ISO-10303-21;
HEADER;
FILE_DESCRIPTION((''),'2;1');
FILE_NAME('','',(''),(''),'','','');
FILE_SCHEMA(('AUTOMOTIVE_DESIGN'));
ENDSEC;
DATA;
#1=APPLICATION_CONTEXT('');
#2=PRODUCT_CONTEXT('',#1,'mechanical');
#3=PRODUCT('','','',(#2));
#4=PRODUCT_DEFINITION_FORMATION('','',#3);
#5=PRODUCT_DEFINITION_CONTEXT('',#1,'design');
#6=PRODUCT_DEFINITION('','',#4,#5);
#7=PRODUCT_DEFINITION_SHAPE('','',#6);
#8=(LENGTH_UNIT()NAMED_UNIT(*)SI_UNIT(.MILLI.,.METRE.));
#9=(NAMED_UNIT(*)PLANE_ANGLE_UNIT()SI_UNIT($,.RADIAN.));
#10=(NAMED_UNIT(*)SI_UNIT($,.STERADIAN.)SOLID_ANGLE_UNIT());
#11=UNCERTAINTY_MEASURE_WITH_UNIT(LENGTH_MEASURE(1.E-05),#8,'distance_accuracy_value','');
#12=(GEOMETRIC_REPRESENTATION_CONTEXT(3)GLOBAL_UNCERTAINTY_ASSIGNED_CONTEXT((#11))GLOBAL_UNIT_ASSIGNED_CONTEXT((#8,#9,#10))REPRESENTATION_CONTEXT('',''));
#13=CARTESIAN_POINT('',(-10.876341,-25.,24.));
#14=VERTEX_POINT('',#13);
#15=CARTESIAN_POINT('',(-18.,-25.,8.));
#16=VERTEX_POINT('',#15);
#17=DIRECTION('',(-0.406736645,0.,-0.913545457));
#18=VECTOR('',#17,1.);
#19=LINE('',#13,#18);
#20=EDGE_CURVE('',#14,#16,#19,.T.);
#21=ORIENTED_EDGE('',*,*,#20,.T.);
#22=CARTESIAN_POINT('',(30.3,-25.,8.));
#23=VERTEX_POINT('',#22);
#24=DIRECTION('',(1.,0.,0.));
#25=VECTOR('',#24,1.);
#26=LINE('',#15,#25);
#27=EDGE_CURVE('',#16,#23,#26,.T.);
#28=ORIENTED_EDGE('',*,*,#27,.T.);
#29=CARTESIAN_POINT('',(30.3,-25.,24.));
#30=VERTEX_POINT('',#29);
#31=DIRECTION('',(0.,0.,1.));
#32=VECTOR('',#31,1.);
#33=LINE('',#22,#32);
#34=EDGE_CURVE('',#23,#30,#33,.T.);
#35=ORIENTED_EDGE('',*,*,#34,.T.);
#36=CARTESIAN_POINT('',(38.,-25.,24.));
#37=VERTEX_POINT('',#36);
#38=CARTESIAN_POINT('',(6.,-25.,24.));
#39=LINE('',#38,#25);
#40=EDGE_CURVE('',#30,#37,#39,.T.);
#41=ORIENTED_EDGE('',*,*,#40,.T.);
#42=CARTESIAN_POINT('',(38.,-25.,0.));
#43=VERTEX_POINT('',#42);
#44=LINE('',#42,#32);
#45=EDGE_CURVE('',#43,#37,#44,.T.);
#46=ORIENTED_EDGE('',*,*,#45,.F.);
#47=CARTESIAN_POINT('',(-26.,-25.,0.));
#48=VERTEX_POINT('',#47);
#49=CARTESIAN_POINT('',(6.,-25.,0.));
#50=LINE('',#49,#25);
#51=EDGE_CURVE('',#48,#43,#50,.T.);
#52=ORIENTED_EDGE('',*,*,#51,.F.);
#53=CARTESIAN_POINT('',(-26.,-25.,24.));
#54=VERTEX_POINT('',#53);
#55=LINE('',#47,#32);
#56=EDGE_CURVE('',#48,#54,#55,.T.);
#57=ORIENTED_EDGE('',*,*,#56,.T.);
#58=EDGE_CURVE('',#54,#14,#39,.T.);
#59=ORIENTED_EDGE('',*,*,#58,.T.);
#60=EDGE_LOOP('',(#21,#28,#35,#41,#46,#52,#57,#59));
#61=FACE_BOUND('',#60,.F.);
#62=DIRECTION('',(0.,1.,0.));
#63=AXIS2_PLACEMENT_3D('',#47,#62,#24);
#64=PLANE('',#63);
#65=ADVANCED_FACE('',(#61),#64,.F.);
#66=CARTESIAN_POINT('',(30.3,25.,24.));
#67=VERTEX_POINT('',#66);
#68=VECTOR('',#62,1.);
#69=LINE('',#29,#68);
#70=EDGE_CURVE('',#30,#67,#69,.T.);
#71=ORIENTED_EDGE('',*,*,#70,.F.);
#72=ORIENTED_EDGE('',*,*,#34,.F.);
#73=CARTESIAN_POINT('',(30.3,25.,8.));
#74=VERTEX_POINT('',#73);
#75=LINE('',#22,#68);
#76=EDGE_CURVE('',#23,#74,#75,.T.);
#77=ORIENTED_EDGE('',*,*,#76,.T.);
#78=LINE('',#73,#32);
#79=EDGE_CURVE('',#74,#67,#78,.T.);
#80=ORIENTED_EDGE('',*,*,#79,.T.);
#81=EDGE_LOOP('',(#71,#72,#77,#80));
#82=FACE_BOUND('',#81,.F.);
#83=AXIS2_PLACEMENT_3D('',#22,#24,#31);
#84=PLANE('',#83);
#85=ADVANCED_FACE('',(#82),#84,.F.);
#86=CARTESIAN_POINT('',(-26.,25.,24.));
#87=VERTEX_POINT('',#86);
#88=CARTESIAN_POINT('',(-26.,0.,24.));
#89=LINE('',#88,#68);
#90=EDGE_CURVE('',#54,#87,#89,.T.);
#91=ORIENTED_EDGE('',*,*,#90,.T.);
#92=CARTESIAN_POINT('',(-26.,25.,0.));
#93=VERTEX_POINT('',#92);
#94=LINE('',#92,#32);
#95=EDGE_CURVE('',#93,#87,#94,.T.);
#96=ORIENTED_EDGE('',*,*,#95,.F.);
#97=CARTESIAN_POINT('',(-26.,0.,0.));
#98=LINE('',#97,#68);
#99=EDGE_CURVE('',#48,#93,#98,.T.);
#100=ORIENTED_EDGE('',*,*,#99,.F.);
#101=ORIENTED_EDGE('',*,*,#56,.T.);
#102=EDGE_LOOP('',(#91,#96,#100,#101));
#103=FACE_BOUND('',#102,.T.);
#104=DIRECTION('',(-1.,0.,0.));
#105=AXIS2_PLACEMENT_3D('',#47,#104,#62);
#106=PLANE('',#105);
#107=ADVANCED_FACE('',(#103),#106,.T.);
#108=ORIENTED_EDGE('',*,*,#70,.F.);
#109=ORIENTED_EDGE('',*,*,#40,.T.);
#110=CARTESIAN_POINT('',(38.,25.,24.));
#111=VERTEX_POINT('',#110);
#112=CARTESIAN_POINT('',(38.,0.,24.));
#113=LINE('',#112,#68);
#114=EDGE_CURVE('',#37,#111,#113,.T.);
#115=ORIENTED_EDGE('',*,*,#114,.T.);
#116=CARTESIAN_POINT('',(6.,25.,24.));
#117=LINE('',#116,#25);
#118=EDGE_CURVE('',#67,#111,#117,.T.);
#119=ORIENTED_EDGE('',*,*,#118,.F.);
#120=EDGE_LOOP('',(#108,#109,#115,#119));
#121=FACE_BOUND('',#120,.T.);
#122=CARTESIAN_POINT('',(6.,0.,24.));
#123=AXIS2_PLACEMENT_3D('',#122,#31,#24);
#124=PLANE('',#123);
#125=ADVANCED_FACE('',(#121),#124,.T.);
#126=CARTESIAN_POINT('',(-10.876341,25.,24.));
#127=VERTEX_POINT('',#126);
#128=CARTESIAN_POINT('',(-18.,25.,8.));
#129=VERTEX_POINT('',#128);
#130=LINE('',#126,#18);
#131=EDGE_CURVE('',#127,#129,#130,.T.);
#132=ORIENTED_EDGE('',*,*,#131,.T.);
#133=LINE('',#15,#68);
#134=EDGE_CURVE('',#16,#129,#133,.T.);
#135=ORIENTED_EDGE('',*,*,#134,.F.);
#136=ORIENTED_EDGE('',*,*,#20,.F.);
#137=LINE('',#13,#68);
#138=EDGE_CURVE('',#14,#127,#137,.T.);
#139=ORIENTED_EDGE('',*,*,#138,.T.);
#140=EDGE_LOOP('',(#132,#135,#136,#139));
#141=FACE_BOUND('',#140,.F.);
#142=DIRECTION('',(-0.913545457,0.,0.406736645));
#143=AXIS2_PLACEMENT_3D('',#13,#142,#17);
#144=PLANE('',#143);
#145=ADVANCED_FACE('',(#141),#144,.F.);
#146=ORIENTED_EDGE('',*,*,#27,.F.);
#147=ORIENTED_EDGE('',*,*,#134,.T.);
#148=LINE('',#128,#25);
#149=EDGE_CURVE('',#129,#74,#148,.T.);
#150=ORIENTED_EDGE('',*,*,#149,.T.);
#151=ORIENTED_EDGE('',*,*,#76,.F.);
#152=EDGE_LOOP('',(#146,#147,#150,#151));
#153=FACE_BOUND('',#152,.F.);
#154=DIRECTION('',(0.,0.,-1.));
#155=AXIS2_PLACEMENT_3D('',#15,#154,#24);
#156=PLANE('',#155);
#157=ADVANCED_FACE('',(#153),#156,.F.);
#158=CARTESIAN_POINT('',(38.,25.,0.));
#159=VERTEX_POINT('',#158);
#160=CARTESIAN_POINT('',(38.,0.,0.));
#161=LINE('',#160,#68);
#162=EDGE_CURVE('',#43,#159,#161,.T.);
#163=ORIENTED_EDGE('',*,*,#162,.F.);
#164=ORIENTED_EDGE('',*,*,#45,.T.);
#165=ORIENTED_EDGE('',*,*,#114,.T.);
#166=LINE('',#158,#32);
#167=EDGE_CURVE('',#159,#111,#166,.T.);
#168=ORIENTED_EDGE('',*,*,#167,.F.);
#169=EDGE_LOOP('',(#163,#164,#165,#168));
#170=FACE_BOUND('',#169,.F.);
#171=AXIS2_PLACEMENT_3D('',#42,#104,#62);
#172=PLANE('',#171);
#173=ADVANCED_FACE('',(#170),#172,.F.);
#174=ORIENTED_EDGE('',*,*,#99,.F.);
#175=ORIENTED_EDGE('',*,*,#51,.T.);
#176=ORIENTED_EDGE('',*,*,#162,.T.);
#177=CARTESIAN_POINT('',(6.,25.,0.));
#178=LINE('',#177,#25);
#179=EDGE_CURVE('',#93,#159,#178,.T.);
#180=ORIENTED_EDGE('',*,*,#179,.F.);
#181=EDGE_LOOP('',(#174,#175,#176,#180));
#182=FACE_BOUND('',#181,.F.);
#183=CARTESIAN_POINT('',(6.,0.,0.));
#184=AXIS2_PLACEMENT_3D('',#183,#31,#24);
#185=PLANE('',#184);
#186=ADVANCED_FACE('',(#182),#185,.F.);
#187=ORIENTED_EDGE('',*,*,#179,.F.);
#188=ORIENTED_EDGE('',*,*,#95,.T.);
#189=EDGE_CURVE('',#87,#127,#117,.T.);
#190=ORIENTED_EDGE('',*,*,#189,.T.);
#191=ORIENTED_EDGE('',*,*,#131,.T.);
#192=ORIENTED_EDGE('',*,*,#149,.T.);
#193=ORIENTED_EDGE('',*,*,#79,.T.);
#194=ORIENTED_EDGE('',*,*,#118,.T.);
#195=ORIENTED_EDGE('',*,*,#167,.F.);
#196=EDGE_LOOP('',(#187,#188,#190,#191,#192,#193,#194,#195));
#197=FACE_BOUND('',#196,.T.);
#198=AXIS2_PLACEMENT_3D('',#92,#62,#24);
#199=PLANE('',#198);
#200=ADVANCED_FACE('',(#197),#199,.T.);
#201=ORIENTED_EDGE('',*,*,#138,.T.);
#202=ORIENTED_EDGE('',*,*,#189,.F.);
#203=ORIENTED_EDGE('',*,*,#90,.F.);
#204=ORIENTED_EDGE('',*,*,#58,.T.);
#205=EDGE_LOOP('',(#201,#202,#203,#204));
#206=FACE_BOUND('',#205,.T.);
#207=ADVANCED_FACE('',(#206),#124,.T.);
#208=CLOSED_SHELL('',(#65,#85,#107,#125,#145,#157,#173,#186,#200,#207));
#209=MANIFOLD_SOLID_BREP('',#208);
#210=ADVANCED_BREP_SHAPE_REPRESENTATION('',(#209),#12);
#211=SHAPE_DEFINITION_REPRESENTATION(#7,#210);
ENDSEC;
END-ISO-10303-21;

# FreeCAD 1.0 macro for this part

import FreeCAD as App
import Part
import Sketcher
from FreeCAD import Vector
Q = App.Units.Quantity

doc = App.newDocument("Part")
body = doc.addObject("PartDesign::Body", "Body")

# Sketch on XY plane
sketch1 = body.newObject("Sketcher::SketchObject", "Sketch")
sketch1.AttachmentSupport = (doc.getObject("XY_Plane"), [""])
sketch1.MapMode = "FlatFace"
sketch1.addGeometry([
    Part.LineSegment(Vector(-26, 25, 0), Vector(-26, -25, 0)),
    Part.LineSegment(Vector(-26, -25, 0), Vector(38, -25, 0)),
    Part.LineSegment(Vector(38, -25, 0), Vector(38, 25, 0)),
    Part.LineSegment(Vector(38, 25, 0), Vector(-26, 25, 0)),
], False)
sketch1.addConstraint([
    Sketcher.Constraint("Coincident", 0, 2, 1, 1),
    Sketcher.Constraint("Coincident", 1, 2, 2, 1),
    Sketcher.Constraint("Coincident", 2, 2, 3, 1),
    Sketcher.Constraint("Coincident", 3, 2, 0, 1),
    Sketcher.Constraint("Vertical", 0),
    Sketcher.Constraint("Horizontal", 1),
    Sketcher.Constraint("Vertical", 2),
    Sketcher.Constraint("Horizontal", 3),
    Sketcher.Constraint("DistanceX", 1, 1, 1, 2, Q("64 mm")),
    Sketcher.Constraint("DistanceY", 0, 2, 0, 1, Q("50 mm")),
    Sketcher.Constraint("DistanceX", 0, 2, -1, 1, Q("26 mm")),
    Sketcher.Constraint("DistanceY", 0, 2, -1, 1, Q("25 mm")),
])
pad1 = body.newObject("PartDesign::Pad", "Pad")
pad1.Profile = sketch1
pad1.Length = 24

# Sketch on XZ plane
sketch2 = body.newObject("Sketcher::SketchObject", "Sketch001")
sketch2.AttachmentSupport = (doc.getObject("XZ_Plane"), [""])
sketch2.MapMode = "FlatFace"
sketch2.AttachmentOffset = App.Placement(Vector(0, 0, 25), App.Rotation())
sketch2.addGeometry([
    Part.LineSegment(Vector(30, 8, 0), Vector(30, 24, 0)),
    Part.LineSegment(Vector(30, 24, 0), Vector(-11, 24, 0)),
    Part.LineSegment(Vector(-11, 24, 0), Vector(-18, 8, 0)),
    Part.LineSegment(Vector(-18, 8, 0), Vector(30, 8, 0)),
], False)
sketch2.addConstraint([
    Sketcher.Constraint("Coincident", 0, 2, 1, 1),
    Sketcher.Constraint("Coincident", 1, 2, 2, 1),
    Sketcher.Constraint("Coincident", 2, 2, 3, 1),
    Sketcher.Constraint("Coincident", 3, 2, 0, 1),
    Sketcher.Constraint("Vertical", 0),
    Sketcher.Constraint("Horizontal", 1),
    Sketcher.Constraint("Horizontal", 3),
    Sketcher.Constraint("DistanceY", 0, 1, 0, 2, Q("16 mm")),
    Sketcher.Constraint("Angle", 2, Q("-114 deg")),
    Sketcher.Constraint("DistanceX", 3, 1, 3, 2, Q("48.3 mm")),
    Sketcher.Constraint("DistanceY", -1, 1, 0, 2, Q("24 mm")),
    Sketcher.Constraint("DistanceX", 2, 2, -1, 1, Q("18 mm")),
])
pocket1 = body.newObject("PartDesign::Pocket", "Pocket")
pocket1.Profile = sketch2
pocket1.Length = 50

doc.recompute()
